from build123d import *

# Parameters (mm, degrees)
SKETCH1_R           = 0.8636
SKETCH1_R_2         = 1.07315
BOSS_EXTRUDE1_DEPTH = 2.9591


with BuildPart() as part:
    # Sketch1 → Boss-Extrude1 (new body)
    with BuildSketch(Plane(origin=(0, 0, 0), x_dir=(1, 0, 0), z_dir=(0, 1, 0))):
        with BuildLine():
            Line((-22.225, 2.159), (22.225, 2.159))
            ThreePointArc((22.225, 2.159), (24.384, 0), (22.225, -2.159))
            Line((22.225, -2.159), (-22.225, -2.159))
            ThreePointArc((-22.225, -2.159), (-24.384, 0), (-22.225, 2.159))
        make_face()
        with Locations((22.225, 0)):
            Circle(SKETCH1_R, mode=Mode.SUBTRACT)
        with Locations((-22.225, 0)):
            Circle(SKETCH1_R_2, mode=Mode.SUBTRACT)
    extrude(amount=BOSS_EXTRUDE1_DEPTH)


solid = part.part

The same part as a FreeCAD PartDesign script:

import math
import FreeCAD as App
import Part
import Sketcher

V = App.Vector
Q = App.Units.Quantity

doc = App.newDocument("Part")
body = doc.addObject("PartDesign::Body", "Body")

sketch1 = body.newObject("Sketcher::SketchObject", "Sketch")
sketch1.AttachmentSupport = (doc.getObject("XZ_Plane"), [""])
sketch1.MapMode = "FlatFace"
sketch1.addGeometry([
    Part.LineSegment(V(22.225, -2.159, 0), V(-22.225, -2.159, 0)),
    Part.ArcOfCircle(Part.Circle(V(-22.225, 0, 0), V(0, 0, 1), 2.159), math.radians(90), math.radians(270)),
    Part.LineSegment(V(-22.225, 2.159, 0), V(22.225, 2.159, 0)),
    Part.ArcOfCircle(Part.Circle(V(22.225, 0, 0), V(0, 0, 1), 2.159), math.radians(-90), math.radians(90)),
    Part.Circle(V(22.225, 0, 0), V(0, 0, 1), 0.8636),
    Part.Circle(V(-22.225, 0, 0), V(0, 0, 1), 1.07315),
], False)
sketch1.addConstraint([
    Sketcher.Constraint("Tangent", 0, 2, 1, 2),
    Sketcher.Constraint("Tangent", 1, 1, 2, 1),
    Sketcher.Constraint("Tangent", 2, 2, 3, 2),
    Sketcher.Constraint("Tangent", 3, 1, 0, 1),
    Sketcher.Constraint("Horizontal", 0),
    Sketcher.Constraint("Horizontal", 2),
    Sketcher.Constraint("Coincident", 4, 3, 3, 3),
    Sketcher.Constraint("Coincident", 5, 3, 1, 3),
    Sketcher.Constraint("Symmetric", 1, 3, 3, 3, -1, 1),
    Sketcher.Constraint("Diameter", 4, Q("0.068 in")),
    Sketcher.Constraint("Radius", 1, Q("0.085 in")),
    Sketcher.Constraint("Diameter", 5, Q("0.0845 in")),
    Sketcher.Constraint("DistanceX", 0, 2, 0, 1, Q("1.75 in")),
])
pad1 = body.newObject("PartDesign::Pad", "Pad")
pad1.Profile = sketch1
pad1.Length = Q("0.1165 in")
pad1.Reversed = True

doc.recompute()
